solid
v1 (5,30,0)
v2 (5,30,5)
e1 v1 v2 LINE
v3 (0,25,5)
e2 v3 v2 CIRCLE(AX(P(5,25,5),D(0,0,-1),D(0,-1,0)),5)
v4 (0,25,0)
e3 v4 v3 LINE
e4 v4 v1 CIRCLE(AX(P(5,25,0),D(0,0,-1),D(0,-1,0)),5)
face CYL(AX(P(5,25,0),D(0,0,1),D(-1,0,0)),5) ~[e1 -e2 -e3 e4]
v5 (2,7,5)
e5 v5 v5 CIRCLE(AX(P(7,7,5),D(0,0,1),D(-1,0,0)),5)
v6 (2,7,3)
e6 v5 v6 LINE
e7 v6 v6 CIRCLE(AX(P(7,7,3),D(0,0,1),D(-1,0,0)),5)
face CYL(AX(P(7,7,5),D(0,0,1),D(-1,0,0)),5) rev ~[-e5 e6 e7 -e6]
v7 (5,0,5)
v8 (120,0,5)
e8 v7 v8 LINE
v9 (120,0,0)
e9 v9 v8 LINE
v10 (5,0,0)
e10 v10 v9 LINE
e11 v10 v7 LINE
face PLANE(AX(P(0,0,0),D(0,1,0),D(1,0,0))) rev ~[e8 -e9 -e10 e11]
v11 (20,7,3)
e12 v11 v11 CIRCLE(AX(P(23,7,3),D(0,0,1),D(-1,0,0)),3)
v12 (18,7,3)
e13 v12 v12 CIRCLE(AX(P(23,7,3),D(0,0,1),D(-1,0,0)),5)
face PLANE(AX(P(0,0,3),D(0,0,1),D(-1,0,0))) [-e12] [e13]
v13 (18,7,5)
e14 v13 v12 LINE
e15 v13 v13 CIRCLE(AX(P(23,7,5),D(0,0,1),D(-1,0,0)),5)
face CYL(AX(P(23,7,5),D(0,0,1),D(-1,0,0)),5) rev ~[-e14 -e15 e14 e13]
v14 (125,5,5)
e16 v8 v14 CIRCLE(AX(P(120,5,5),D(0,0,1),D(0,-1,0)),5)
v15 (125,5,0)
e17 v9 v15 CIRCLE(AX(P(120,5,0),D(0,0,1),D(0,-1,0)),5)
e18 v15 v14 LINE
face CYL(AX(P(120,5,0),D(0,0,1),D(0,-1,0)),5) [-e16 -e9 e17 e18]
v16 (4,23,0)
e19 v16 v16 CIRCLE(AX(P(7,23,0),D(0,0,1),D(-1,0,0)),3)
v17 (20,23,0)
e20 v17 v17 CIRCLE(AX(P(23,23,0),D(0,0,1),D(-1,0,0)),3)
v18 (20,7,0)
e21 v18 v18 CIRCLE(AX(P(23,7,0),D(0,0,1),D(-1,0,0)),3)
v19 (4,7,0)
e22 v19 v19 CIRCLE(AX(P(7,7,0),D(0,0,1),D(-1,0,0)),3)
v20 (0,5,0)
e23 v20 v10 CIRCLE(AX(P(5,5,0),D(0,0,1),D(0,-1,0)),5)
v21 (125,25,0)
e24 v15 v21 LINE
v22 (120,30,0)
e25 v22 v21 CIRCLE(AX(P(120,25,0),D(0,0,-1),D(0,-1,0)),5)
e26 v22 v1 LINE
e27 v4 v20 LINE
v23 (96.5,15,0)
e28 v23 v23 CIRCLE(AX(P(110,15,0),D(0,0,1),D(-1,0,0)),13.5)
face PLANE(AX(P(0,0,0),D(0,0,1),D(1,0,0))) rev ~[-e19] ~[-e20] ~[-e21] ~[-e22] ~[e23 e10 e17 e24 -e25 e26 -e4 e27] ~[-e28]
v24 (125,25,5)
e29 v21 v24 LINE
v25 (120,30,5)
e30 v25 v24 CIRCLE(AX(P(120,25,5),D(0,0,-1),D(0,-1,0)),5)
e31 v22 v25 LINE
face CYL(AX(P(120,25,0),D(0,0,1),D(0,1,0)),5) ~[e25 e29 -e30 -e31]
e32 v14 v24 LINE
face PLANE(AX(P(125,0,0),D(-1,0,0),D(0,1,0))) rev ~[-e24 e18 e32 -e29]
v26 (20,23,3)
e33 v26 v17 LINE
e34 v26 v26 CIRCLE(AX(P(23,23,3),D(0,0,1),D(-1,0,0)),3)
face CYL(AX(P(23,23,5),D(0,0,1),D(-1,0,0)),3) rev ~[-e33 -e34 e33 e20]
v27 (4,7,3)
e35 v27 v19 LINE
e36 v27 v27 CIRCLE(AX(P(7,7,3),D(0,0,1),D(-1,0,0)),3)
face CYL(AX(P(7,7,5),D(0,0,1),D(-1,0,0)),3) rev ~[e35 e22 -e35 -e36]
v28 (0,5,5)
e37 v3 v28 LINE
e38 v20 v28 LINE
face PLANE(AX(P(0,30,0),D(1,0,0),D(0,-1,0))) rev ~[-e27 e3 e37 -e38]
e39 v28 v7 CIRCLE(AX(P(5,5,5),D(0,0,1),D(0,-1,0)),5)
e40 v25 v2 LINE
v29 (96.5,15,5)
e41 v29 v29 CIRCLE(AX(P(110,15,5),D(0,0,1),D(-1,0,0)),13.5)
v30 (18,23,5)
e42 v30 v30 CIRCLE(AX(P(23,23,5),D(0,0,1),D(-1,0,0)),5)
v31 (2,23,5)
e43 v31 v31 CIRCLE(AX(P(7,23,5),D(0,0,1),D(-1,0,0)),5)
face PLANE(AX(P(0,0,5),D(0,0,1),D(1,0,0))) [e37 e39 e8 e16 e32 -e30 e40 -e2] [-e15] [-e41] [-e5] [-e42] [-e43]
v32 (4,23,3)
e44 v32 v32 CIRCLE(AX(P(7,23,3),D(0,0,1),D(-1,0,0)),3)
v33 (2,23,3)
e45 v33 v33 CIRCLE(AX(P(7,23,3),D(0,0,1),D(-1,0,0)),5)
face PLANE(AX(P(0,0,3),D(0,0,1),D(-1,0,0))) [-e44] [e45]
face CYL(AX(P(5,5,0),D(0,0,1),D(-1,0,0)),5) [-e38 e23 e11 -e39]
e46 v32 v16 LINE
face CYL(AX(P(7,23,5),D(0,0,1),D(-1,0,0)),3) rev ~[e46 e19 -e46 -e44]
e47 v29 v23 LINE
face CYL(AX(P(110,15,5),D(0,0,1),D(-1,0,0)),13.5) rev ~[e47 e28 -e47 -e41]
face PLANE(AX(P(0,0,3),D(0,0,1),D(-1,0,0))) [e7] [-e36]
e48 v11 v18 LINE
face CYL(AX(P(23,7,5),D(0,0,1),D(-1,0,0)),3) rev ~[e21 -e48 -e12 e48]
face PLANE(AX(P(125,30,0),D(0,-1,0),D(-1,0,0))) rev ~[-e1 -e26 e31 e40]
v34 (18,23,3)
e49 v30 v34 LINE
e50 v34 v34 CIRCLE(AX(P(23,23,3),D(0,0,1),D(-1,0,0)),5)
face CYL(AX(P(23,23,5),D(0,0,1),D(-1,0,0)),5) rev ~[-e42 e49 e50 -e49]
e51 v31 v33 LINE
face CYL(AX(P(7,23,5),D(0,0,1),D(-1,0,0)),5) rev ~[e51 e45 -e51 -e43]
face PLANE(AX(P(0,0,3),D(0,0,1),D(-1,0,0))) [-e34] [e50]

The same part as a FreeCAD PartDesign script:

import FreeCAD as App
import Part
import Sketcher

V = App.Vector
Q = App.Units.Quantity


def edges_at(feature, points):
    """Names of the edges that pass closest to the given points."""
    edges = feature.Shape.Edges
    near = lambda p: min(range(len(edges)), key=lambda i: edges[i].distToShape(Part.Vertex(*p))[0])
    return sorted({f"Edge{near(p) + 1}" for p in points})

doc = App.newDocument("Part")
body = doc.addObject("PartDesign::Body", "Body")

# Sketch on XY plane
sketch1 = body.newObject("Sketcher::SketchObject", "Sketch")
sketch1.AttachmentSupport = (doc.getObject("XY_Plane"), [""])
sketch1.MapMode = "FlatFace"
sketch1.addGeometry(Part.LineSegment(V(0, 30, 0), V(0, 0, 0)), False)
sketch1.addGeometry(Part.LineSegment(V(0, 0, 0), V(125, 0, 0)), False)
sketch1.addGeometry(Part.LineSegment(V(125, 0, 0), V(125, 30, 0)), False)
sketch1.addGeometry(Part.LineSegment(V(125, 30, 0), V(0, 30, 0)), False)
sketch1.addConstraint(Sketcher.Constraint("Coincident", 0, 2, 1, 1))
sketch1.addConstraint(Sketcher.Constraint("Coincident", 1, 2, 2, 1))
sketch1.addConstraint(Sketcher.Constraint("Coincident", 2, 2, 3, 1))
sketch1.addConstraint(Sketcher.Constraint("Coincident", 3, 2, 0, 1))
sketch1.addConstraint(Sketcher.Constraint("Vertical", 0))
sketch1.addConstraint(Sketcher.Constraint("Horizontal", 1))
sketch1.addConstraint(Sketcher.Constraint("Vertical", 2))
sketch1.addConstraint(Sketcher.Constraint("Horizontal", 3))
sketch1.addConstraint(Sketcher.Constraint("Coincident", 0, 2, -1, 1))
sketch1.addConstraint(Sketcher.Constraint("DistanceX", 1, 1, 1, 2, Q("125 mm")))
sketch1.addConstraint(Sketcher.Constraint("DistanceY", 0, 2, 0, 1, Q("30 mm")))
pad1 = body.newObject("PartDesign::Pad", "Pad")
pad1.Profile = sketch1
pad1.Length = 5

# Sketch on XY plane
sketch2 = body.newObject("Sketcher::SketchObject", "Sketch001")
sketch2.AttachmentSupport = (doc.getObject("XY_Plane"), [""])
sketch2.MapMode = "FlatFace"
sketch2.AttachmentOffset = App.Placement(V(0, 0, 5), App.Rotation())
sketch2.addGeometry(Part.Circle(V(110, 15, 0), V(0, 0, 1), 14), False)
sketch2.addConstraint(Sketcher.Constraint("Diameter", 0, Q("27 mm")))
sketch2.addConstraint(Sketcher.Constraint("DistanceX", -1, 1, 0, 3, Q("110 mm")))
sketch2.addConstraint(Sketcher.Constraint("DistanceY", -1, 1, 0, 3, Q("15 mm")))
pocket1 = body.newObject("PartDesign::Pocket", "Pocket")
pocket1.Profile = sketch2
pocket1.Length = 5

# Sketch on XY plane
sketch3 = body.newObject("Sketcher::SketchObject", "Sketch002")
sketch3.AttachmentSupport = (doc.getObject("XY_Plane"), [""])
sketch3.MapMode = "FlatFace"
sketch3.AttachmentOffset = App.Placement(V(0, 0, 5), App.Rotation())
sketch3.addGeometry(Part.Circle(V(7, 23, 0), V(0, 0, 1), 3), False)
sketch3.addGeometry(Part.Circle(V(7, 7, 0), V(0, 0, 1), 3), False)
sketch3.addGeometry(Part.Circle(V(23, 23, 0), V(0, 0, 1), 3), False)
sketch3.addGeometry(Part.Circle(V(23, 7, 0), V(0, 0, 1), 3), False)
sketch3.addConstraint(Sketcher.Constraint("Equal", 0, 1))
sketch3.addConstraint(Sketcher.Constraint("Equal", 1, 2))
sketch3.addConstraint(Sketcher.Constraint("Equal", 2, 3))
sketch3.addConstraint(Sketcher.Constraint("Horizontal", 0, 3, 2, 3))
sketch3.addConstraint(Sketcher.Constraint("Horizontal", 1, 3, 3, 3))
sketch3.addConstraint(Sketcher.Constraint("Vertical", 0, 3, 1, 3))
sketch3.addConstraint(Sketcher.Constraint("Vertical", 2, 3, 3, 3))
sketch3.addConstraint(Sketcher.Constraint("Diameter", 0, Q("6 mm")))
sketch3.addConstraint(Sketcher.Constraint("DistanceX", -1, 1, 0, 3, Q("7 mm")))
sketch3.addConstraint(Sketcher.Constraint("DistanceY", -1, 1, 0, 3, Q("23 mm")))
sketch3.addConstraint(Sketcher.Constraint("DistanceY", -1, 1, 1, 3, Q("7 mm")))
sketch3.addConstraint(Sketcher.Constraint("DistanceX", -1, 1, 2, 3, Q("23 mm")))
pocket2 = body.newObject("PartDesign::Pocket", "Pocket001")
pocket2.Profile = sketch3
pocket2.Length = 5

# Sketch on XY plane
sketch4 = body.newObject("Sketcher::SketchObject", "Sketch003")
sketch4.AttachmentSupport = (doc.getObject("XY_Plane"), [""])
sketch4.MapMode = "FlatFace"
sketch4.AttachmentOffset = App.Placement(V(0, 0, 5), App.Rotation())
sketch4.addGeometry(Part.Circle(V(7, 23, 0), V(0, 0, 1), 5), False)
sketch4.addGeometry(Part.Circle(V(7, 23, 0), V(0, 0, 1), 3), False)
sketch4.addGeometry(Part.Circle(V(23, 23, 0), V(0, 0, 1), 5), False)
sketch4.addGeometry(Part.Circle(V(23, 23, 0), V(0, 0, 1), 3), False)
sketch4.addGeometry(Part.Circle(V(7, 7, 0), V(0, 0, 1), 5), False)
sketch4.addGeometry(Part.Circle(V(7, 7, 0), V(0, 0, 1), 3), False)
sketch4.addGeometry(Part.Circle(V(23, 7, 0), V(0, 0, 1), 5), False)
sketch4.addGeometry(Part.Circle(V(23, 7, 0), V(0, 0, 1), 3), False)
sketch4.addConstraint(Sketcher.Constraint("Coincident", 1, 3, 0, 3))
sketch4.addConstraint(Sketcher.Constraint("Coincident", 3, 3, 2, 3))
sketch4.addConstraint(Sketcher.Constraint("Coincident", 5, 3, 4, 3))
sketch4.addConstraint(Sketcher.Constraint("Coincident", 7, 3, 6, 3))
sketch4.addConstraint(Sketcher.Constraint("Equal", 0, 2))
sketch4.addConstraint(Sketcher.Constraint("Equal", 1, 3))
sketch4.addConstraint(Sketcher.Constraint("Equal", 2, 4))
sketch4.addConstraint(Sketcher.Constraint("Equal", 3, 5))
sketch4.addConstraint(Sketcher.Constraint("Equal", 4, 6))
sketch4.addConstraint(Sketcher.Constraint("Equal", 5, 7))
sketch4.addConstraint(Sketcher.Constraint("Horizontal", 1, 3, 2, 3))
sketch4.addConstraint(Sketcher.Constraint("Horizontal", 5, 3, 6, 3))
sketch4.addConstraint(Sketcher.Constraint("Vertical", 1, 3, 4, 3))
sketch4.addConstraint(Sketcher.Constraint("Vertical", 3, 3, 6, 3))
sketch4.addConstraint(Sketcher.Constraint("Diameter", 0, Q("10 mm")))
sketch4.addConstraint(Sketcher.Constraint("Diameter", 1, Q("6 mm")))
sketch4.addConstraint(Sketcher.Constraint("DistanceX", -1, 1, 0, 3, Q("7 mm")))
sketch4.addConstraint(Sketcher.Constraint("DistanceY", -1, 1, 0, 3, Q("23 mm")))
sketch4.addConstraint(Sketcher.Constraint("DistanceX", -1, 1, 2, 3, Q("23 mm")))
sketch4.addConstraint(Sketcher.Constraint("DistanceY", -1, 1, 4, 3, Q("7 mm")))
pocket3 = body.newObject("PartDesign::Pocket", "Pocket002")
pocket3.Profile = sketch4
pocket3.Length = 2
doc.recompute()

fillet = body.newObject("PartDesign::Fillet", "Fillet")
fillet.Base = (pocket3, edges_at(pocket3, [
    (125, 30, 2.5),
    (125, 0, 2.5),
    (0, 0, 2.5),
    (0, 30, 2.5),
]))
fillet.Radius = 5

doc.recompute()
